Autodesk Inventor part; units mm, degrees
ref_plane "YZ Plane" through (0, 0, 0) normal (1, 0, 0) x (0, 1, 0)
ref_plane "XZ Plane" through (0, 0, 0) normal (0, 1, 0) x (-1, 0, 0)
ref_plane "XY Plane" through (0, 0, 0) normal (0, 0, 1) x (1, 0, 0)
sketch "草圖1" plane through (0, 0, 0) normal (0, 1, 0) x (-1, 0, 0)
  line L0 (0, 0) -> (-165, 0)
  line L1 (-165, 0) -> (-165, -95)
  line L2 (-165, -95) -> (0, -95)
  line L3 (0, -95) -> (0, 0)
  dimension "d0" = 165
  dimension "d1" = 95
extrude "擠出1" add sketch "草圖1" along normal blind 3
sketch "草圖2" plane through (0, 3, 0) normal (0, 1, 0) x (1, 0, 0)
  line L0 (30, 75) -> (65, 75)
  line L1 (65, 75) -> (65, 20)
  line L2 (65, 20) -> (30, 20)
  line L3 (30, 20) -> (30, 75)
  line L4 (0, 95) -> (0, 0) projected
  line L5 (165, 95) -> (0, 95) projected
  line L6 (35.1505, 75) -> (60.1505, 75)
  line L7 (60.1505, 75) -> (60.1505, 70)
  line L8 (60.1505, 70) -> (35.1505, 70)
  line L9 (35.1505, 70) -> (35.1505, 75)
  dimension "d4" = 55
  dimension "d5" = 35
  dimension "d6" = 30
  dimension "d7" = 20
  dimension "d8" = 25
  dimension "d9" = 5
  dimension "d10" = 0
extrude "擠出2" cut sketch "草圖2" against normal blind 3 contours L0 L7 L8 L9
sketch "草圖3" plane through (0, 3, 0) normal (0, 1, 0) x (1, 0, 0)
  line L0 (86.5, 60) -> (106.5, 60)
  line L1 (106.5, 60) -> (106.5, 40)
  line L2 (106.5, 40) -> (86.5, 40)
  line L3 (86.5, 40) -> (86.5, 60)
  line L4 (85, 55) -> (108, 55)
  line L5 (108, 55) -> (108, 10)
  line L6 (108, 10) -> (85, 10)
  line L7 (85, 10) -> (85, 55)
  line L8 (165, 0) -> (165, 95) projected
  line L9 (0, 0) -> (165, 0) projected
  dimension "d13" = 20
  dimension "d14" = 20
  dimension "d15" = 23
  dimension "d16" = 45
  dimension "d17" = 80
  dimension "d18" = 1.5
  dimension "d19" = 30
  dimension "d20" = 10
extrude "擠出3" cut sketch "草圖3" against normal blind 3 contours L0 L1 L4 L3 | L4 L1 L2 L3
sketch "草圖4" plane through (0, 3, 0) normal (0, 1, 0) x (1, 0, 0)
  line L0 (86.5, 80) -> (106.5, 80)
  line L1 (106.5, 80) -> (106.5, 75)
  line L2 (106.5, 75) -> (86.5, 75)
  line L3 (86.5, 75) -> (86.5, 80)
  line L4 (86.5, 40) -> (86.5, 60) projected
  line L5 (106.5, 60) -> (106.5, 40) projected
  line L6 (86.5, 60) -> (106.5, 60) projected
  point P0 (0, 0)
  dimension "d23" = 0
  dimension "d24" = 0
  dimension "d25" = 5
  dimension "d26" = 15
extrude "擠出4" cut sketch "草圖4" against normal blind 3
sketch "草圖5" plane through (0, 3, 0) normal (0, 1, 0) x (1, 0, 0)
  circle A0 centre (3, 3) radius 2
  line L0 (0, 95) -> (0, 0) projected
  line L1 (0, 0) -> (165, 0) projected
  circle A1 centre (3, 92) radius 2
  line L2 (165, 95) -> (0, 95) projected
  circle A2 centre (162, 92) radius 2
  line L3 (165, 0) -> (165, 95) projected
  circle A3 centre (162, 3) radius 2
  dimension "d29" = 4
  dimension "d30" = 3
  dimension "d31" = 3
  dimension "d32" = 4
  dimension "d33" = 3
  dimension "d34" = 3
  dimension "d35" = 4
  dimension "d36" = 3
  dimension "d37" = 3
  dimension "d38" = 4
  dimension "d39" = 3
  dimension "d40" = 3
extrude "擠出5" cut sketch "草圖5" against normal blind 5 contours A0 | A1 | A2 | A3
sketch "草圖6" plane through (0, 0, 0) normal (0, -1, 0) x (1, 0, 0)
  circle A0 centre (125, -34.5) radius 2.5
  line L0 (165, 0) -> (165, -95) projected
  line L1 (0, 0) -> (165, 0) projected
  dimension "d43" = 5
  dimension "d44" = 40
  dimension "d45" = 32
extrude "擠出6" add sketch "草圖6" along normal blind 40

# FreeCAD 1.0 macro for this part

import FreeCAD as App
import Part
import Sketcher
Q = App.Units.Quantity


def add_polygon(sketch, points):
    """Adds a closed chain of lines whose ends are joined by coincident constraints."""
    first, n = sketch.GeometryCount, len(points)
    for a, b in zip(points, points[1:] + points[:1]):
        sketch.addGeometry(Part.LineSegment(App.Vector(*a, 0), App.Vector(*b, 0)), False)
    for i in range(n):
        sketch.addConstraint(Sketcher.Constraint("Coincident", first + i, 2, first + (i + 1) % n, 1))

doc = App.newDocument("Part")
body = doc.addObject("PartDesign::Body", "Body")

# Sketch on XZ plane
sketch1 = doc.addObject("Sketcher::SketchObject", "Sketch")
body.addObject(sketch1)
sketch1.AttachmentSupport = (doc.XZ_Plane, [""])
sketch1.MapMode = "FlatFace"
add_polygon(sketch1, [(0, -95), (0, 0), (165, 0), (165, -95)])  # lines 0-3
sketch1.addConstraint([
    Sketcher.Constraint("Vertical", 0),
    Sketcher.Constraint("Horizontal", 1),
    Sketcher.Constraint("Vertical", 2),
    Sketcher.Constraint("Horizontal", 3),
    Sketcher.Constraint("Coincident", 0, 2, -1, 1),
    Sketcher.Constraint("DistanceX", 1, 1, 1, 2, Q("165 mm")),
    Sketcher.Constraint("DistanceY", 0, 1, 0, 2, Q("95 mm")),
])
pad1 = doc.addObject("PartDesign::Pad", "Pad")
body.addObject(pad1)
pad1.Profile = sketch1
pad1.Length = 3
pad1.Reversed = True

# Sketch on XZ plane
sketch2 = doc.addObject("Sketcher::SketchObject", "Sketch001")
body.addObject(sketch2)
sketch2.AttachmentSupport = (doc.XZ_Plane, [""])
sketch2.MapMode = "FlatFace"
sketch2.AttachmentOffset = App.Placement(App.Vector(0, 0, -3), App.Rotation())
add_polygon(sketch2, [(60, -75), (35, -75), (35, -70), (60, -70)])  # lines 0-3
sketch2.addConstraint([
    Sketcher.Constraint("Horizontal", 0),
    Sketcher.Constraint("Vertical", 1),
    Sketcher.Constraint("Horizontal", 2),
    Sketcher.Constraint("Vertical", 3),
    Sketcher.Constraint("DistanceX", 0, 2, 0, 1, Q("25 mm")),
    Sketcher.Constraint("DistanceY", 1, 1, 1, 2, Q("5 mm")),
    Sketcher.Constraint("DistanceY", 0, 2, -1, 1, Q("75 mm")),
    Sketcher.Constraint("DistanceX", -1, 1, 0, 2, Q("35.1505 mm")),
])
pocket1 = doc.addObject("PartDesign::Pocket", "Pocket")
body.addObject(pocket1)
pocket1.Profile = sketch2
pocket1.Length = 3
pocket1.Reversed = True

# Sketch on XZ plane
sketch3 = doc.addObject("Sketcher::SketchObject", "Sketch002")
body.addObject(sketch3)
sketch3.AttachmentSupport = (doc.XZ_Plane, [""])
sketch3.MapMode = "FlatFace"
sketch3.AttachmentOffset = App.Placement(App.Vector(0, 0, -3), App.Rotation())
add_polygon(sketch3, [(106, -60), (86, -60), (86, -40), (106, -40)])  # lines 0-3
sketch3.addConstraint([
    Sketcher.Constraint("Horizontal", 0),
    Sketcher.Constraint("Vertical", 1),
    Sketcher.Constraint("Horizontal", 2),
    Sketcher.Constraint("Vertical", 3),
    Sketcher.Constraint("Equal", 2, 1),
    Sketcher.Constraint("DistanceX", 0, 2, 0, 1, Q("20 mm")),
    Sketcher.Constraint("DistanceY", 0, 2, -1, 1, Q("60 mm")),
    Sketcher.Constraint("DistanceX", -1, 1, 0, 2, Q("86.5 mm")),
])
pocket2 = doc.addObject("PartDesign::Pocket", "Pocket001")
body.addObject(pocket2)
pocket2.Profile = sketch3
pocket2.Length = 3
pocket2.Reversed = True

# Sketch on XZ plane
sketch4 = doc.addObject("Sketcher::SketchObject", "Sketch003")
body.addObject(sketch4)
sketch4.AttachmentSupport = (doc.XZ_Plane, [""])
sketch4.MapMode = "FlatFace"
sketch4.AttachmentOffset = App.Placement(App.Vector(0, 0, -3), App.Rotation())
add_polygon(sketch4, [(106, -80), (86, -80), (86, -75), (106, -75)])  # lines 0-3
sketch4.addConstraint([
    Sketcher.Constraint("Horizontal", 0),
    Sketcher.Constraint("Vertical", 1),
    Sketcher.Constraint("Horizontal", 2),
    Sketcher.Constraint("Vertical", 3),
    Sketcher.Constraint("DistanceY", 1, 1, 1, 2, Q("5 mm")),
    Sketcher.Constraint("DistanceX", 0, 2, 0, 1, Q("20 mm")),
    Sketcher.Constraint("DistanceY", 0, 2, -1, 1, Q("80 mm")),
    Sketcher.Constraint("DistanceX", -1, 1, 0, 2, Q("86.5 mm")),
])
pocket3 = doc.addObject("PartDesign::Pocket", "Pocket002")
body.addObject(pocket3)
pocket3.Profile = sketch4
pocket3.Length = 3
pocket3.Reversed = True

# Sketch on XZ plane
sketch5 = doc.addObject("Sketcher::SketchObject", "Sketch004")
body.addObject(sketch5)
sketch5.AttachmentSupport = (doc.XZ_Plane, [""])
sketch5.MapMode = "FlatFace"
sketch5.AttachmentOffset = App.Placement(App.Vector(0, 0, -3), App.Rotation())
sketch5.addGeometry([
    Part.Circle(App.Vector(3, -3, 0), App.Vector(0, 0, 1), 2),
    Part.Circle(App.Vector(3, -92, 0), App.Vector(0, 0, 1), 2),
    Part.Circle(App.Vector(162, -92, 0), App.Vector(0, 0, 1), 2),
    Part.Circle(App.Vector(162, -3, 0), App.Vector(0, 0, 1), 2),
], False)
sketch5.addConstraint([
    Sketcher.Constraint("Equal", 0, 1),
    Sketcher.Constraint("Equal", 1, 2),
    Sketcher.Constraint("Equal", 2, 3),
    Sketcher.Constraint("Horizontal", 1, 3, 2, 3),
    Sketcher.Constraint("Horizontal", 0, 3, 3, 3),
    Sketcher.Constraint("Vertical", 0, 3, 1, 3),
    Sketcher.Constraint("Vertical", 2, 3, 3, 3),
    Sketcher.Constraint("Diameter", 0, Q("4 mm")),
    Sketcher.Constraint("DistanceX", -1, 1, 0, 3, Q("3 mm")),
    Sketcher.Constraint("DistanceY", 0, 3, -1, 1, Q("3 mm")),
    Sketcher.Constraint("DistanceY", 1, 3, -1, 1, Q("92 mm")),
    Sketcher.Constraint("DistanceX", -1, 1, 2, 3, Q("162 mm")),
])
pocket4 = doc.addObject("PartDesign::Pocket", "Pocket003")
body.addObject(pocket4)
pocket4.Profile = sketch5
pocket4.Length = 5
pocket4.Reversed = True

# Sketch on XZ plane
sketch6 = doc.addObject("Sketcher::SketchObject", "Sketch005")
body.addObject(sketch6)
sketch6.AttachmentSupport = (doc.XZ_Plane, [""])
sketch6.MapMode = "FlatFace"
sketch6.addGeometry(Part.Circle(App.Vector(125, -34.5, 0), App.Vector(0, 0, 1), 2.5), False)
sketch6.addConstraint([
    Sketcher.Constraint("Diameter", 0, Q("5 mm")),
    Sketcher.Constraint("DistanceX", -1, 1, 0, 3, Q("125 mm")),
    Sketcher.Constraint("DistanceY", 0, 3, -1, 1, Q("34.5 mm")),
])
pad2 = doc.addObject("PartDesign::Pad", "Pad001")
body.addObject(pad2)
pad2.Profile = sketch6
pad2.Length = 40

doc.recompute()
